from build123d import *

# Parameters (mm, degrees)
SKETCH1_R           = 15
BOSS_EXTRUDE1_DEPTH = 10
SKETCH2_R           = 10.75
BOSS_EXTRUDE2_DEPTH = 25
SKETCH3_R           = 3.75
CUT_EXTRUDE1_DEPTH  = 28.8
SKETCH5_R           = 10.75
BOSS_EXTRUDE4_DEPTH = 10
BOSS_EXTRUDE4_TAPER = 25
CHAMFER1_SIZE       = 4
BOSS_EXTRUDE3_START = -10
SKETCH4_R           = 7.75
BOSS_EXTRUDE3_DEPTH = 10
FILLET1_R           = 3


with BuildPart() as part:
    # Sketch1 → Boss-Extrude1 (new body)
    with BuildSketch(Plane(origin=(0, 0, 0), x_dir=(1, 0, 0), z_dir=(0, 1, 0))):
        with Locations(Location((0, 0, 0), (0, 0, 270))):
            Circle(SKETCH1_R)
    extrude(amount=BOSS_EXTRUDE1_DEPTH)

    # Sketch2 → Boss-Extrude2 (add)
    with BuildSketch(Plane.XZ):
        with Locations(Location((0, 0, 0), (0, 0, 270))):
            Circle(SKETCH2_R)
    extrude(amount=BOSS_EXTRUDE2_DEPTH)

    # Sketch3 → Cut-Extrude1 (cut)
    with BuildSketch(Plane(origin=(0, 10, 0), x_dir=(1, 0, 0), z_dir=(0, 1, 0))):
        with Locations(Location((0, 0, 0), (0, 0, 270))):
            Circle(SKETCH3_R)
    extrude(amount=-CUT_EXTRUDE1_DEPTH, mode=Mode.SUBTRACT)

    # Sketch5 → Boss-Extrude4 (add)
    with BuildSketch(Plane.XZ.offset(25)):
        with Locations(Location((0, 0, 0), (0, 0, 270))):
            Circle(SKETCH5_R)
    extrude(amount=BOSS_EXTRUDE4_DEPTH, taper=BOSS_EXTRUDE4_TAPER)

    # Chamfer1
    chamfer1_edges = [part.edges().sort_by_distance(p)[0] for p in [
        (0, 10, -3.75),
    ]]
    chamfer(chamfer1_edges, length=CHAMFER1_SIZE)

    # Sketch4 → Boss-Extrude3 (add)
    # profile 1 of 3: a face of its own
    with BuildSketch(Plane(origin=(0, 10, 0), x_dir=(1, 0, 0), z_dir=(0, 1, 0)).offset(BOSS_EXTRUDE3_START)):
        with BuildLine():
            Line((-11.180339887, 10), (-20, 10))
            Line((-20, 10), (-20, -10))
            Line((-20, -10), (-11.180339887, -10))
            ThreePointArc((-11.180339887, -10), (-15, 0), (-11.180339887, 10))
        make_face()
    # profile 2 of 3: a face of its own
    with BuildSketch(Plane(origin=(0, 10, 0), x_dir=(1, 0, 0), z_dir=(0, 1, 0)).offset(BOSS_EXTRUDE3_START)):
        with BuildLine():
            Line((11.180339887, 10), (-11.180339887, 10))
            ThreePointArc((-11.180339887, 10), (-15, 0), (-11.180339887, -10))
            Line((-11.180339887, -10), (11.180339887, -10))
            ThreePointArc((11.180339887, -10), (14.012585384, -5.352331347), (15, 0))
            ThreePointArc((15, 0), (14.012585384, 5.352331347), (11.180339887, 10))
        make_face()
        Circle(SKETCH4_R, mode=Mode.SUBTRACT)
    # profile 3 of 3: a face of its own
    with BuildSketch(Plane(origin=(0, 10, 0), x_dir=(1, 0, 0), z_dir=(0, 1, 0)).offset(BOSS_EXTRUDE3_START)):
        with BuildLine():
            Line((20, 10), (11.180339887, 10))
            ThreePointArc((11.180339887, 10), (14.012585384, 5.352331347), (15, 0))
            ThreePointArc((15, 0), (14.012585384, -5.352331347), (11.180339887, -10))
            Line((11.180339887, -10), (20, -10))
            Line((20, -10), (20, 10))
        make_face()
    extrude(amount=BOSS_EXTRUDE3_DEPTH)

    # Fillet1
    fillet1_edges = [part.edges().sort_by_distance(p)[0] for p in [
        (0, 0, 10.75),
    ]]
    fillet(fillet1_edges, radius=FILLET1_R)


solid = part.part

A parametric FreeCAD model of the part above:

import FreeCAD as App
import Part
import Sketcher

V = App.Vector
Q = App.Units.Quantity


def edges_at(feature, points):
    """Names of the edges that pass closest to the given points."""
    edges = feature.Shape.Edges
    near = lambda p: min(range(len(edges)), key=lambda i: edges[i].distToShape(Part.Vertex(*p))[0])
    return sorted({f"Edge{near(p) + 1}" for p in points})


def add_polygon(sketch, points):
    """Adds a closed chain of lines whose ends are joined by coincident constraints."""
    first, n = sketch.GeometryCount, len(points)
    for a, b in zip(points, points[1:] + points[:1]):
        sketch.addGeometry(Part.LineSegment(App.Vector(*a, 0), App.Vector(*b, 0)), False)
    for i in range(n):
        sketch.addConstraint(Sketcher.Constraint("Coincident", first + i, 2, first + (i + 1) % n, 1))

doc = App.newDocument("Part")
body = doc.addObject("PartDesign::Body", "Body")

# Sketch on XZ plane
sketch1 = body.newObject("Sketcher::SketchObject", "Sketch")
sketch1.AttachmentSupport = (doc.getObject("XZ_Plane"), [""])
sketch1.MapMode = "FlatFace"
sketch1.addGeometry(Part.Circle(V(0, 0, 0), V(0, 0, 1), 15), False)
sketch1.addConstraint([
    Sketcher.Constraint("Coincident", 0, 3, -1, 1),
    Sketcher.Constraint("Diameter", 0, Q("30 mm")),
])
pad1 = body.newObject("PartDesign::Pad", "Pad")
pad1.Profile = sketch1
pad1.Length = 10
pad1.Reversed = True

# Sketch on XZ plane
sketch2 = body.newObject("Sketcher::SketchObject", "Sketch001")
sketch2.AttachmentSupport = (doc.getObject("XZ_Plane"), [""])
sketch2.MapMode = "FlatFace"
sketch2.addGeometry(Part.Circle(V(0, 0, 0), V(0, 0, 1), 10.75), False)
sketch2.addConstraint([
    Sketcher.Constraint("Coincident", 0, 3, -1, 1),
    Sketcher.Constraint("Diameter", 0, Q("21.5 mm")),
])
pad2 = body.newObject("PartDesign::Pad", "Pad001")
pad2.Profile = sketch2
pad2.Length = 25

# Sketch on XZ plane
sketch3 = body.newObject("Sketcher::SketchObject", "Sketch002")
sketch3.AttachmentSupport = (doc.getObject("XZ_Plane"), [""])
sketch3.MapMode = "FlatFace"
sketch3.AttachmentOffset = App.Placement(V(0, 0, -10), App.Rotation())
sketch3.addGeometry(Part.Circle(V(0, 0, 0), V(0, 0, 1), 3.75), False)
sketch3.addConstraint([
    Sketcher.Constraint("Coincident", 0, 3, -1, 1),
    Sketcher.Constraint("Diameter", 0, Q("7.5 mm")),
])
pocket1 = body.newObject("PartDesign::Pocket", "Pocket")
pocket1.Profile = sketch3
pocket1.Length = 28.8
pocket1.Reversed = True

# Sketch on XZ plane
sketch4 = body.newObject("Sketcher::SketchObject", "Sketch003")
sketch4.AttachmentSupport = (doc.getObject("XZ_Plane"), [""])
sketch4.MapMode = "FlatFace"
sketch4.AttachmentOffset = App.Placement(V(0, 0, 25), App.Rotation())
sketch4.addGeometry(Part.Circle(V(0, 0, 0), V(0, 0, 1), 10.75), False)
sketch4.addConstraint([
    Sketcher.Constraint("Coincident", 0, 3, -1, 1),
    Sketcher.Constraint("Diameter", 0, Q("21.5 mm")),
])
pad3 = body.newObject("PartDesign::Pad", "Pad002")
pad3.Profile = sketch4
pad3.Length = 10
pad3.TaperAngle = -25
doc.recompute()

chamfer = body.newObject("PartDesign::Chamfer", "Chamfer")
chamfer.Base = (pad3, edges_at(pad3, [(0, 10, -3.75)]))
chamfer.Size = 4

# Sketch on XZ plane
sketch5 = body.newObject("Sketcher::SketchObject", "Sketch004")
sketch5.AttachmentSupport = (doc.getObject("XZ_Plane"), [""])
sketch5.MapMode = "FlatFace"
add_polygon(sketch5, [(-20, -10), (-20, 10), (20, 10), (20, -10)])  # lines 0-3
sketch5.addGeometry(Part.Circle(V(0, 0, 0), V(0, 0, 1), 7.75), False)  # 4
sketch5.addConstraint([
    Sketcher.Constraint("Vertical", 0),
    Sketcher.Constraint("Horizontal", 1),
    Sketcher.Constraint("Vertical", 2),
    Sketcher.Constraint("Horizontal", 3),
    Sketcher.Constraint("Coincident", 4, 3, -1, 1),
    Sketcher.Constraint("Symmetric", 0, 2, 2, 2, -1, 1),
    Sketcher.Constraint("Diameter", 4, Q("15.5 mm")),
    Sketcher.Constraint("DistanceX", 1, 1, 1, 2, Q("40 mm")),
    Sketcher.Constraint("DistanceY", 0, 1, 0, 2, Q("20 mm")),
])
pad4 = body.newObject("PartDesign::Pad", "Pad003")
pad4.Profile = sketch5
pad4.Length = 10
pad4.Reversed = True
doc.recompute()

fillet = body.newObject("PartDesign::Fillet", "Fillet")
fillet.Base = (pad4, edges_at(pad4, [(0, 0, 10.75)]))
fillet.Radius = 3

doc.recompute()
